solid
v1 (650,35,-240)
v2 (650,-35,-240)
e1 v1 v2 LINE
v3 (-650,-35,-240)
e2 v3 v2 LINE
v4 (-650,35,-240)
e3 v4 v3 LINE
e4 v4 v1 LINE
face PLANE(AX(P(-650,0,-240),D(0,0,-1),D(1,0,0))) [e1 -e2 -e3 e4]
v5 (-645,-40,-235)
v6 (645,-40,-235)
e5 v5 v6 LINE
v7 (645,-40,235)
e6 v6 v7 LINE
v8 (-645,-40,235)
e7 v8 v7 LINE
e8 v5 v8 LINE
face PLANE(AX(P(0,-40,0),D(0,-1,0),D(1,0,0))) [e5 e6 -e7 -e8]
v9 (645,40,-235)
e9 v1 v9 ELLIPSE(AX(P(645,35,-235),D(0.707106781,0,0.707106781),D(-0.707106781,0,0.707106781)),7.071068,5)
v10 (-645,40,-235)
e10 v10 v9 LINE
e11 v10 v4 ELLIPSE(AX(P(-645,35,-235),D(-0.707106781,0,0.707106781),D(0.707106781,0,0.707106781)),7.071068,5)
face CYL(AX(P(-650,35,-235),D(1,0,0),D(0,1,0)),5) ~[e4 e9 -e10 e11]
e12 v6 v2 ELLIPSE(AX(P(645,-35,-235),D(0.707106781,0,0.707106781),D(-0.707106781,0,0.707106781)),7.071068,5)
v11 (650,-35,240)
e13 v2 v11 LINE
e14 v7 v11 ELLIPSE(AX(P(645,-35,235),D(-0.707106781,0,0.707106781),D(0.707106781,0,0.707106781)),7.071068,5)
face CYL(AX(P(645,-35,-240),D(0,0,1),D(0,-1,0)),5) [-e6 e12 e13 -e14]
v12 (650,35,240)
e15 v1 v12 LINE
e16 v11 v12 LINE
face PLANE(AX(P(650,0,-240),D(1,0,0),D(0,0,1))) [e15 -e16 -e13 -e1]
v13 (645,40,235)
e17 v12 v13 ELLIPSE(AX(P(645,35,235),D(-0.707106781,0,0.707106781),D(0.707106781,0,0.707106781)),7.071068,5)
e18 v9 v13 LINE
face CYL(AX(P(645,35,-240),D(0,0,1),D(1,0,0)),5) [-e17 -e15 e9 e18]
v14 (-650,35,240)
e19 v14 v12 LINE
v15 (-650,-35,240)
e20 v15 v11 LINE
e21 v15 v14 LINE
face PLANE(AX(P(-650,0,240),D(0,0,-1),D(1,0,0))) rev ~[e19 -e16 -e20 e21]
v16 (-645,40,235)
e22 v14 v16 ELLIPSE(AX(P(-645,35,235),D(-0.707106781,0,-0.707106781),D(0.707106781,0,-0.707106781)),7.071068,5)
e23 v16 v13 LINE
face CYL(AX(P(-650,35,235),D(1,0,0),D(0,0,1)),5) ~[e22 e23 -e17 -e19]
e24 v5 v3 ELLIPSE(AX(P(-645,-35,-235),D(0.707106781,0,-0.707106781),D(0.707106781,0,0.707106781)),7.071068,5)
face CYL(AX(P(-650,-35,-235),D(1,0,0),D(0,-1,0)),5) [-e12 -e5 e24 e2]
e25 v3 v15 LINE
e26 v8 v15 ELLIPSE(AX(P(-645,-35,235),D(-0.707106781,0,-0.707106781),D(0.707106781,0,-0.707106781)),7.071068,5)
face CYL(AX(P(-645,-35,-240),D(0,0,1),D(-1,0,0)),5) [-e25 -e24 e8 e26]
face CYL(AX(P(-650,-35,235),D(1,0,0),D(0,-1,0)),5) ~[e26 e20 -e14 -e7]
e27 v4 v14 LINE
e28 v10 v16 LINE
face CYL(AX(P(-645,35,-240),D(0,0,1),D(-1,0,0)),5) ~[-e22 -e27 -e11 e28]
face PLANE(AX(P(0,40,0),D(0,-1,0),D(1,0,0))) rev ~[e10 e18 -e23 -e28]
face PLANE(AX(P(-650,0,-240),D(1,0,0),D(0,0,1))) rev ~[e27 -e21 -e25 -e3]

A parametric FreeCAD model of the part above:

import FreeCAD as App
import Part
import Sketcher
Q = App.Units.Quantity


def edges_at(feature, points):
    """Names of the edges that pass closest to the given points."""
    edges = feature.Shape.Edges
    near = lambda p: min(range(len(edges)), key=lambda i: edges[i].distToShape(Part.Vertex(*p))[0])
    return sorted({f"Edge{near(p) + 1}" for p in points})


def add_polygon(sketch, points):
    """Adds a closed chain of lines whose ends are joined by coincident constraints."""
    first, n = sketch.GeometryCount, len(points)
    for a, b in zip(points, points[1:] + points[:1]):
        sketch.addGeometry(Part.LineSegment(App.Vector(*a, 0), App.Vector(*b, 0)), False)
    for i in range(n):
        sketch.addConstraint(Sketcher.Constraint("Coincident", first + i, 2, first + (i + 1) % n, 1))

doc = App.newDocument("Part")
params = doc.addObject("Spreadsheet::Sheet", "Params")
for row, (alias, value) in enumerate([
    ("sketch1_width", "1300 mm"),
    ("sketch1_height", "480 mm"),
    ("pad1_length", "80 mm"),
    ("fillet_radius", "5 mm"),
], start=1):
    params.set(f"A{row}", alias)
    params.set(f"B{row}", "=" + value)
    params.setAlias(f"B{row}", alias)

body = doc.addObject("PartDesign::Body", "Body")

# Sketch on XZ plane
sketch1 = doc.addObject("Sketcher::SketchObject", "Sketch")
body.addObject(sketch1)
sketch1.AttachmentSupport = (doc.XZ_Plane, [""])
sketch1.MapMode = "FlatFace"
add_polygon(sketch1, [(-650, 240), (-650, -240), (650, -240), (650, 240)])  # lines 0-3
sketch1.addConstraint(Sketcher.Constraint("Vertical", 0))
sketch1.addConstraint(Sketcher.Constraint("Horizontal", 1))
sketch1.addConstraint(Sketcher.Constraint("Vertical", 2))
sketch1.addConstraint(Sketcher.Constraint("Horizontal", 3))
sketch1.addConstraint(Sketcher.Constraint("Symmetric", 0, 2, 2, 2, -1, 1))
sketch1.addConstraint(Sketcher.Constraint("DistanceX", 1, 1, 1, 2, Q("1300 mm")))
sketch1.addConstraint(Sketcher.Constraint("DistanceY", 0, 2, 0, 1, Q("480 mm")))
sketch1.setExpression("Constraints[9]", "Params.sketch1_width")
sketch1.setExpression("Constraints[10]", "Params.sketch1_height")
pad1 = doc.addObject("PartDesign::Pad", "Pad")
body.addObject(pad1)
pad1.Profile = sketch1
pad1.setExpression("Length", "Params.pad1_length")
pad1.Midplane = True
doc.recompute()

fillet = doc.addObject("PartDesign::Fillet", "Fillet")
body.addObject(fillet)
fillet.Base = (pad1, edges_at(pad1, [
    (0, -40, 240),
    (650, -40, 0),
    (0, -40, -240),
    (-650, -40, 0),
    (0, 40, 240),
    (650, 40, 0),
    (0, 40, -240),
    (-650, 40, 0),
]))
fillet.setExpression("Radius", "Params.fillet_radius")

doc.recompute()
